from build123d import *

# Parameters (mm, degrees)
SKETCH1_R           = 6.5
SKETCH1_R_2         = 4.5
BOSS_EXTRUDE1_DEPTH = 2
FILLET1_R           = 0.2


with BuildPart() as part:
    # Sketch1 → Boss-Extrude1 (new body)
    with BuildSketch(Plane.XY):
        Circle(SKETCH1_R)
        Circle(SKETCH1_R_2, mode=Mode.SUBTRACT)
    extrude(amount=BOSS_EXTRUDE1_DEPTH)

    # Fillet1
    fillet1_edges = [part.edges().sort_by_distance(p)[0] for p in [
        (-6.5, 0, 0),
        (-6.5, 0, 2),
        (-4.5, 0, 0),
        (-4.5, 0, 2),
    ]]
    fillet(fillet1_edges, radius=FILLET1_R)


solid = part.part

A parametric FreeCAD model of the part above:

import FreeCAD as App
import Part
import Sketcher

V = App.Vector
Q = App.Units.Quantity


def edges_at(feature, points):
    """Names of the edges that pass closest to the given points."""
    edges = feature.Shape.Edges
    near = lambda p: min(range(len(edges)), key=lambda i: edges[i].distToShape(Part.Vertex(*p))[0])
    return sorted({f"Edge{near(p) + 1}" for p in points})

doc = App.newDocument("Part")
body = doc.addObject("PartDesign::Body", "Body")

# Sketch on XY plane
sketch1 = doc.addObject("Sketcher::SketchObject", "Sketch")
body.addObject(sketch1)
sketch1.AttachmentSupport = (doc.XY_Plane, [""])
sketch1.MapMode = "FlatFace"
sketch1.addGeometry([
    Part.Circle(V(0, 0, 0), V(0, 0, 1), 6.5),
    Part.Circle(V(0, 0, 0), V(0, 0, 1), 4.5),
], False)
sketch1.addConstraint([
    Sketcher.Constraint("Coincident", 0, 3, -1, 1),
    Sketcher.Constraint("Coincident", 1, 3, -1, 1),
    Sketcher.Constraint("Diameter", 0, Q("13 mm")),
    Sketcher.Constraint("Diameter", 1, Q("9 mm")),
])
pad1 = doc.addObject("PartDesign::Pad", "Pad")
body.addObject(pad1)
pad1.Profile = sketch1
pad1.Length = 2
doc.recompute()

fillet = doc.addObject("PartDesign::Fillet", "Fillet")
body.addObject(fillet)
fillet.Base = (pad1, edges_at(pad1, [
    (-6.5, 0, 0),
    (-6.5, 0, 2),
    (-4.5, 0, 0),
    (-4.5, 0, 2),
]))
fillet.Radius = 0.2

doc.recompute()
